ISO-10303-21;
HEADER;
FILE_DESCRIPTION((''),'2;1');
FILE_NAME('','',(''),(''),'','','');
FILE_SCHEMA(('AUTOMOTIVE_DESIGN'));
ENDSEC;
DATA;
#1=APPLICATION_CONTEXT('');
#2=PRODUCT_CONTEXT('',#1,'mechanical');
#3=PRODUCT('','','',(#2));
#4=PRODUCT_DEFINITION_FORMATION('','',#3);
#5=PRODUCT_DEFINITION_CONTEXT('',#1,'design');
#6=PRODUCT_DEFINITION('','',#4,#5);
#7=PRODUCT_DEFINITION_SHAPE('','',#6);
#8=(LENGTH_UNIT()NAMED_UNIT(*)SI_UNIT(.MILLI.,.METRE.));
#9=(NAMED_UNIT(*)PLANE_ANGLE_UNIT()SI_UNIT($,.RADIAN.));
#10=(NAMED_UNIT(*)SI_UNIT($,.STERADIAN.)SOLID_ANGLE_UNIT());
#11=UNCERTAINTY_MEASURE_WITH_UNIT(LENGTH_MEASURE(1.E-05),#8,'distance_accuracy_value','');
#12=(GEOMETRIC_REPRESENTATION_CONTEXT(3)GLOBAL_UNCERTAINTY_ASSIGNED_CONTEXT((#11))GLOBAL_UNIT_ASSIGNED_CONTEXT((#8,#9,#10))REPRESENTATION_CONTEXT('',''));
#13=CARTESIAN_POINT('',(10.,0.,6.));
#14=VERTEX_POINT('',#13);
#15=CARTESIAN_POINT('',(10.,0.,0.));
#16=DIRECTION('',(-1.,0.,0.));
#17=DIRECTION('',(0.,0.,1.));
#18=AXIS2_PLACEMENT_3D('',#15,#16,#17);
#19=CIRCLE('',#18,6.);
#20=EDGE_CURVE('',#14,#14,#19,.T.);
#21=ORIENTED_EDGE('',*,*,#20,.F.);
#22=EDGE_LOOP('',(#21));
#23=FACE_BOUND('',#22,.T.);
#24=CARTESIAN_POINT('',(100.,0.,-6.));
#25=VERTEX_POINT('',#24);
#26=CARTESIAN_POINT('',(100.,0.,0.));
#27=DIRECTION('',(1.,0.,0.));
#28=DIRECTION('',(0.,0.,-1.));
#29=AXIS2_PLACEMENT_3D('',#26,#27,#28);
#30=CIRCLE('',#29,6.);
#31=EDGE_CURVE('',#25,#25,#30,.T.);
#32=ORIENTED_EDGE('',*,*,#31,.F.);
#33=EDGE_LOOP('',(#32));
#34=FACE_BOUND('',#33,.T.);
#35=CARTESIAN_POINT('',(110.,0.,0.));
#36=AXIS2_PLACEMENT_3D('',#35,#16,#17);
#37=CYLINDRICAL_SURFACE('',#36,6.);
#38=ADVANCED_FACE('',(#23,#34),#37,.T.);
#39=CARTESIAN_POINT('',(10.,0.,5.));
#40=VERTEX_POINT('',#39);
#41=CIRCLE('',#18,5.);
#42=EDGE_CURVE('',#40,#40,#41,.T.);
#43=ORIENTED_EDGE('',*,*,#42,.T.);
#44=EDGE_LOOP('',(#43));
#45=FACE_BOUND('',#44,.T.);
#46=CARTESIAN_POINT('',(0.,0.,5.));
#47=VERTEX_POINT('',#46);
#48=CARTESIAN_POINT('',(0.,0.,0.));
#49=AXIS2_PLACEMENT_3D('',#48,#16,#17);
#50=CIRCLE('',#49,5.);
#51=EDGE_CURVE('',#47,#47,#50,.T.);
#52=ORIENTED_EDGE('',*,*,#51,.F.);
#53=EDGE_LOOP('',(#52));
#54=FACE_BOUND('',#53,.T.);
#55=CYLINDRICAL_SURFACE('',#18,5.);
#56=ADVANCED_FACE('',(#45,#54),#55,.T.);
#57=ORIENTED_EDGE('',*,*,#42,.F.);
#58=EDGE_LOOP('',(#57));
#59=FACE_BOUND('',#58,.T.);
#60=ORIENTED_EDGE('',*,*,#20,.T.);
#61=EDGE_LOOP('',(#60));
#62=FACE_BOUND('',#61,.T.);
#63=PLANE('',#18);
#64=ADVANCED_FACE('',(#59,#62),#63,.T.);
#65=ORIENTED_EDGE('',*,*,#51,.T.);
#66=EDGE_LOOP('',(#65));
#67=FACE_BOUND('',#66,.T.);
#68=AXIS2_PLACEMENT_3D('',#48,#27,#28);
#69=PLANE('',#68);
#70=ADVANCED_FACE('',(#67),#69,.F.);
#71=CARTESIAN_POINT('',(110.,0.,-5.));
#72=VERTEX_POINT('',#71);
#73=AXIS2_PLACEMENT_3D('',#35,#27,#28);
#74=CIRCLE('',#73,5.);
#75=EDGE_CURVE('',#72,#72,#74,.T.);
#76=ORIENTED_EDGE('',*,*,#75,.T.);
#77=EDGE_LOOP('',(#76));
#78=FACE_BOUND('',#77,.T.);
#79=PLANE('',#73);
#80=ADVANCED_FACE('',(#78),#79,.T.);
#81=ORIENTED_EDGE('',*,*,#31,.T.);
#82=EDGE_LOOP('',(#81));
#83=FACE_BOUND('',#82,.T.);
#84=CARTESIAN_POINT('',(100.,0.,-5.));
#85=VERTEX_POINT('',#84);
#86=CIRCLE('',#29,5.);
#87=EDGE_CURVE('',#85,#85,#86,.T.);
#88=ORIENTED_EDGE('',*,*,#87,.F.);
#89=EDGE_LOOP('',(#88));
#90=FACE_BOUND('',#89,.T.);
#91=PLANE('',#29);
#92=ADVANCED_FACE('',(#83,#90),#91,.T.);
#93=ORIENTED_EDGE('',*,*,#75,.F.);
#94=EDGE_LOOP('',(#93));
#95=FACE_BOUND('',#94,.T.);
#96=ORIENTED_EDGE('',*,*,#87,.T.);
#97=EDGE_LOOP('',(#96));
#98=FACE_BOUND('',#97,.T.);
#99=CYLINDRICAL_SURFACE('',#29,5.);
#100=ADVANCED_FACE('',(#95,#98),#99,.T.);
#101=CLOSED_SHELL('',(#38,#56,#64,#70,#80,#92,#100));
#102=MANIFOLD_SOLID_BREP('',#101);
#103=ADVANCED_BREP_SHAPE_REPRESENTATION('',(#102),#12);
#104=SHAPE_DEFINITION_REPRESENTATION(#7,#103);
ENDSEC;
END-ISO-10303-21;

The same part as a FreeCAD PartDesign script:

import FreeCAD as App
import Part
import Sketcher

V = App.Vector
Q = App.Units.Quantity

doc = App.newDocument("Part")
body = doc.addObject("PartDesign::Body", "Body")

sketch1 = body.newObject("Sketcher::SketchObject", "Sketch")
sketch1.AttachmentSupport = (doc.getObject("YZ_Plane"), [""])
sketch1.MapMode = "FlatFace"
sketch1.addGeometry(Part.Circle(V(0, 0, 0), V(0, 0, 1), 6), False)
sketch1.addConstraint([
    Sketcher.Constraint("Coincident", 0, 3, -1, 1),
    Sketcher.Constraint("Diameter", 0, Q("12 mm")),
])
pad1 = body.newObject("PartDesign::Pad", "Pad")
pad1.Profile = sketch1
pad1.Length = 110

sketch2 = body.newObject("Sketcher::SketchObject", "Sketch001")
sketch2.AttachmentSupport = (doc.getObject("YZ_Plane"), [""])
sketch2.MapMode = "FlatFace"
sketch2.AttachmentOffset = App.Placement(V(0, 0, 110), App.Rotation())
sketch2.addGeometry([
    Part.LineSegment(V(18, 18, 0), V(-18, 18, 0)),
    Part.LineSegment(V(-18, 18, 0), V(-18, -18, 0)),
    Part.LineSegment(V(-18, -18, 0), V(18, -18, 0)),
    Part.LineSegment(V(18, -18, 0), V(18, 18, 0)),
    Part.Circle(V(0, 0, 0), V(0, 0, 1), 5),
], False)
sketch2.addConstraint([
    Sketcher.Constraint("Coincident", 0, 2, 1, 1),
    Sketcher.Constraint("Coincident", 1, 2, 2, 1),
    Sketcher.Constraint("Coincident", 2, 2, 3, 1),
    Sketcher.Constraint("Coincident", 3, 2, 0, 1),
    Sketcher.Constraint("Horizontal", 0),
    Sketcher.Constraint("Vertical", 1),
    Sketcher.Constraint("Horizontal", 2),
    Sketcher.Constraint("Vertical", 3),
    Sketcher.Constraint("Coincident", 4, 3, -1, 1),
    Sketcher.Constraint("Symmetric", 0, 2, 2, 2, -1, 1),
    Sketcher.Constraint("Equal", 2, 1),
    Sketcher.Constraint("Diameter", 4, Q("10 mm")),
    Sketcher.Constraint("DistanceX", 0, 2, 0, 1, Q("36.26 mm")),
])
pocket1 = body.newObject("PartDesign::Pocket", "Pocket")
pocket1.Profile = sketch2
pocket1.Length = 10

sketch3 = body.newObject("Sketcher::SketchObject", "Sketch002")
sketch3.AttachmentSupport = (doc.getObject("YZ_Plane"), [""])
sketch3.MapMode = "FlatFace"
sketch3.addGeometry([
    Part.LineSegment(V(18, -18, 0), V(-18, -18, 0)),
    Part.LineSegment(V(-18, -18, 0), V(-18, 18, 0)),
    Part.LineSegment(V(-18, 18, 0), V(18, 18, 0)),
    Part.LineSegment(V(18, 18, 0), V(18, -18, 0)),
    Part.Circle(V(0, 0, 0), V(0, 0, 1), 5),
], False)
sketch3.addConstraint([
    Sketcher.Constraint("Coincident", 0, 2, 1, 1),
    Sketcher.Constraint("Coincident", 1, 2, 2, 1),
    Sketcher.Constraint("Coincident", 2, 2, 3, 1),
    Sketcher.Constraint("Coincident", 3, 2, 0, 1),
    Sketcher.Constraint("Horizontal", 0),
    Sketcher.Constraint("Vertical", 1),
    Sketcher.Constraint("Horizontal", 2),
    Sketcher.Constraint("Vertical", 3),
    Sketcher.Constraint("Coincident", 4, 3, -1, 1),
    Sketcher.Constraint("Symmetric", 0, 2, 2, 2, -1, 1),
    Sketcher.Constraint("Equal", 2, 1),
    Sketcher.Constraint("Diameter", 4, Q("10 mm")),
    Sketcher.Constraint("DistanceX", 0, 2, 0, 1, Q("36.26 mm")),
])
pocket2 = body.newObject("PartDesign::Pocket", "Pocket001")
pocket2.Profile = sketch3
pocket2.Length = 10
pocket2.Reversed = True

doc.recompute()
